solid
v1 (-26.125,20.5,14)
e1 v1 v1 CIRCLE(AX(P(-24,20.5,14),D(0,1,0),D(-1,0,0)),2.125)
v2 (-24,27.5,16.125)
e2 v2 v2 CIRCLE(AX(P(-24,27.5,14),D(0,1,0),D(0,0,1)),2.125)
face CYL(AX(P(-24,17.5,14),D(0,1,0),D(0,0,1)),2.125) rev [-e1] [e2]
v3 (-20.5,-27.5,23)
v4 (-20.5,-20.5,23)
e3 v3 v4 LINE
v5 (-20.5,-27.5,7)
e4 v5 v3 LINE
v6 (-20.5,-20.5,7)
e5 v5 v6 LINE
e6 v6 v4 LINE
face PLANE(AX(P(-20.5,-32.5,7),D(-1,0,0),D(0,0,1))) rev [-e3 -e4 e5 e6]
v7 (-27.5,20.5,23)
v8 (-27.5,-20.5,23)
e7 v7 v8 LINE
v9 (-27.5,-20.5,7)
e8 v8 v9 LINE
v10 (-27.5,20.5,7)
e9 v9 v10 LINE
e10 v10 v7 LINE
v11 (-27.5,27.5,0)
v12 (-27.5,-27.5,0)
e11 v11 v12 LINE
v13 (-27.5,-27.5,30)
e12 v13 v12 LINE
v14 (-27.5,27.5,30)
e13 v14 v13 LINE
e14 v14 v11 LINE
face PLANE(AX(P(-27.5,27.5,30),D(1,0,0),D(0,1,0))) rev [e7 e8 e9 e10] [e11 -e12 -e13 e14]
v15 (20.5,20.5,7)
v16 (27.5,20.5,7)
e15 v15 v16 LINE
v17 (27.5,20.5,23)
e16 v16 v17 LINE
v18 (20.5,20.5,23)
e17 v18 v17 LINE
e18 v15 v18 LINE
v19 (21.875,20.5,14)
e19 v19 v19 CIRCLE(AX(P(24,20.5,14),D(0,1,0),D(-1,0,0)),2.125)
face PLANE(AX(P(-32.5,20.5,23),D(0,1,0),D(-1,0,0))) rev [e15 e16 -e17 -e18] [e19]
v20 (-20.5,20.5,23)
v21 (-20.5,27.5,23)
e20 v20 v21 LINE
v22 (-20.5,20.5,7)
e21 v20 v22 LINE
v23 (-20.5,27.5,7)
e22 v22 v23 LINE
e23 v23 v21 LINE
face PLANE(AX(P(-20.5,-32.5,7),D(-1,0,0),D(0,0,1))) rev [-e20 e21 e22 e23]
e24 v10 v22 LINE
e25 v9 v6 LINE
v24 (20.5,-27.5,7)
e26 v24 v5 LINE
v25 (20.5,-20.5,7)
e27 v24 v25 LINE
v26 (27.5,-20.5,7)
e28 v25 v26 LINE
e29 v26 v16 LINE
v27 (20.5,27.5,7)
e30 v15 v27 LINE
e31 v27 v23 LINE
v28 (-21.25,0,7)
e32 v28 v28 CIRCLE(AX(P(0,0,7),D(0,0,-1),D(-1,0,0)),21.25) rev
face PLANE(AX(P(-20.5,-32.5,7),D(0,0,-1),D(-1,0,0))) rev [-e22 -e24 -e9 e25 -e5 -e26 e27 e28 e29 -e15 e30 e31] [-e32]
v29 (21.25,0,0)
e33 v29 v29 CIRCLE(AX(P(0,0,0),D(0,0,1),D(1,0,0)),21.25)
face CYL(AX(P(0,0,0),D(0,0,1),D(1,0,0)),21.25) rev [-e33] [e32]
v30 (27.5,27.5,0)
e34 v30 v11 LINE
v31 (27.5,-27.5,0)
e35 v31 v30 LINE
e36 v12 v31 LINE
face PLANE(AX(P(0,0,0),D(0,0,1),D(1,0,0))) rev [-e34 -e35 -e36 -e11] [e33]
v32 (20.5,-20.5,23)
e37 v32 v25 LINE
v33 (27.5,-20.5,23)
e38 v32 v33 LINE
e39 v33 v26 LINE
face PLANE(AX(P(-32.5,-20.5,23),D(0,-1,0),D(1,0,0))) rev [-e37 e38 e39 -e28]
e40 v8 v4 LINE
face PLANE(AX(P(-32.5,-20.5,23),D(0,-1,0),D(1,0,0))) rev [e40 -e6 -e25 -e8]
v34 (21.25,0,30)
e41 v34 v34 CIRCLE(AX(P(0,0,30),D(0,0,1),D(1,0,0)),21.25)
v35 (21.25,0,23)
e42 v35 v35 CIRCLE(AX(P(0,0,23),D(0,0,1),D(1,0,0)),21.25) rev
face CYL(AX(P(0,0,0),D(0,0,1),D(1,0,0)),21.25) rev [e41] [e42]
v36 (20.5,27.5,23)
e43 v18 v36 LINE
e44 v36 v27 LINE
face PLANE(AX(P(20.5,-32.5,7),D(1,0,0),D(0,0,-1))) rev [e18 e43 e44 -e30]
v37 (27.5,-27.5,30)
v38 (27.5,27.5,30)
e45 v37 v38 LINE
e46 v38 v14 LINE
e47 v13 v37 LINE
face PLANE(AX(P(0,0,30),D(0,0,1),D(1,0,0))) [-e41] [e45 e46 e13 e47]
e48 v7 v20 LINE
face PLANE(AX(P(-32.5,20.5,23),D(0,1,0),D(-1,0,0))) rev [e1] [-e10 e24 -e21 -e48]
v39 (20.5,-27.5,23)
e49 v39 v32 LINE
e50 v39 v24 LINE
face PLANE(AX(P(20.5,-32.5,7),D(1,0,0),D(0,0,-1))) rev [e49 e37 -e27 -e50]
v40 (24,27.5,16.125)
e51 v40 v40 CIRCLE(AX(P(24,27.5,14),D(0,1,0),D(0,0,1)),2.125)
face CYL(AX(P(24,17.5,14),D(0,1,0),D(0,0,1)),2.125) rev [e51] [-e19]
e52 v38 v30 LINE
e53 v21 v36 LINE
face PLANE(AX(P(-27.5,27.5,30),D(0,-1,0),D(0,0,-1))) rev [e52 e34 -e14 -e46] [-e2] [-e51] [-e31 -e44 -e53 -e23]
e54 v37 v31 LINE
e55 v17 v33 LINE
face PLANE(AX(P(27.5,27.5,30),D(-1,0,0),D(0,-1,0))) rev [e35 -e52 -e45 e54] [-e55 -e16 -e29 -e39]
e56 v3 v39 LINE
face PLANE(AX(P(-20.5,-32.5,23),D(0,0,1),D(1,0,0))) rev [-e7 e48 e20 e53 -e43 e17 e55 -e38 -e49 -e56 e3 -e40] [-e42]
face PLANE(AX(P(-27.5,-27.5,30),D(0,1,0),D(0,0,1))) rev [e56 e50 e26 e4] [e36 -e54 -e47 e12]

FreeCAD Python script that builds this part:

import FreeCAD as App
import Part
import Sketcher
from FreeCAD import Vector


def add_polygon(sketch, points):
    """Adds a closed chain of lines whose ends are joined by coincident constraints."""
    first, n = sketch.GeometryCount, len(points)
    for a, b in zip(points, points[1:] + points[:1]):
        sketch.addGeometry(Part.LineSegment(App.Vector(*a, 0), App.Vector(*b, 0)), False)
    for i in range(n):
        sketch.addConstraint(Sketcher.Constraint("Coincident", first + i, 2, first + (i + 1) % n, 1))

doc = App.newDocument("Part")
body = doc.addObject("PartDesign::Body", "Body")

# Sketch on XY plane
sketch1 = doc.addObject("Sketcher::SketchObject", "Sketch")
body.addObject(sketch1)
sketch1.AttachmentSupport = (doc.XY_Plane, [""])
sketch1.MapMode = "FlatFace"
add_polygon(sketch1, [(-28, 28), (-28, -28), (28, -28), (28, 28)])  # lines 0-3
sketch1.addConstraint([
    Sketcher.Constraint("Vertical", 0),
    Sketcher.Constraint("Horizontal", 1),
    Sketcher.Constraint("Vertical", 2),
    Sketcher.Constraint("Horizontal", 3),
    Sketcher.Constraint("Symmetric", 0, 2, 2, 2, -1, 1),
    Sketcher.Constraint("Equal", 3, 0),
    Sketcher.Constraint("DistanceX", 1, 1, 1, 2, 55.0),
])
pad1 = doc.addObject("PartDesign::Pad", "Pad")
body.addObject(pad1)
pad1.Profile = sketch1
pad1.Length = 30

# Sketch on XY plane
sketch2 = doc.addObject("Sketcher::SketchObject", "Sketch001")
body.addObject(sketch2)
sketch2.AttachmentSupport = (doc.XY_Plane, [""])
sketch2.MapMode = "FlatFace"
sketch2.AttachmentOffset = App.Placement(Vector(0, 0, 30), App.Rotation())
sketch2.addGeometry(Part.Circle(Vector(0, 0, 0), Vector(0, 0, 1), 21), False)
sketch2.addConstraint([
    Sketcher.Constraint("Coincident", 0, 3, -1, 1),
    Sketcher.Constraint("Diameter", 0, 42.5),
])
pocket1 = doc.addObject("PartDesign::Pocket", "Pocket")
body.addObject(pocket1)
pocket1.Profile = sketch2
pocket1.Length = 30

# Sketch on XZ plane
sketch3 = doc.addObject("Sketcher::SketchObject", "Sketch002")
body.addObject(sketch3)
sketch3.AttachmentSupport = (doc.XZ_Plane, [""])
sketch3.MapMode = "FlatFace"
sketch3.AttachmentOffset = App.Placement(Vector(0, 0, -27.5), App.Rotation())
add_polygon(sketch3, [(-20, 7), (-20, 23), (20, 23), (20, 7)])  # lines 0-3
sketch3.addConstraint([
    Sketcher.Constraint("Vertical", 0),
    Sketcher.Constraint("Horizontal", 1),
    Sketcher.Constraint("Vertical", 2),
    Sketcher.Constraint("Horizontal", 3),
    Sketcher.Constraint("DistanceX", 1, 1, 1, 2, 41.0),
    Sketcher.Constraint("DistanceY", 0, 1, 0, 2, 16.0),
    Sketcher.Constraint("DistanceY", -1, 1, 0, 2, 23.0),
    Sketcher.Constraint("DistanceX", 0, 2, -1, 1, 20.5),
])
pocket2 = doc.addObject("PartDesign::Pocket", "Pocket001")
body.addObject(pocket2)
pocket2.Profile = sketch3
pocket2.Length = 60
pocket2.Reversed = True

# Sketch on YZ plane
sketch4 = doc.addObject("Sketcher::SketchObject", "Sketch003")
body.addObject(sketch4)
sketch4.AttachmentSupport = (doc.YZ_Plane, [""])
sketch4.MapMode = "FlatFace"
sketch4.AttachmentOffset = App.Placement(Vector(0, 0, 27.5), App.Rotation())
add_polygon(sketch4, [(20, 23), (-20, 23), (-20, 7), (20, 7)])  # lines 0-3
sketch4.addConstraint([
    Sketcher.Constraint("Horizontal", 0),
    Sketcher.Constraint("Vertical", 1),
    Sketcher.Constraint("Horizontal", 2),
    Sketcher.Constraint("Vertical", 3),
    Sketcher.Constraint("DistanceX", 0, 2, 0, 1, 41.0),
    Sketcher.Constraint("DistanceY", 1, 2, 1, 1, 16.0),
    Sketcher.Constraint("DistanceY", -1, 1, 0, 2, 23.0),
    Sketcher.Constraint("DistanceX", 0, 2, -1, 1, 20.5),
])
pocket3 = doc.addObject("PartDesign::Pocket", "Pocket002")
body.addObject(pocket3)
pocket3.Profile = sketch4
pocket3.Length = 60

# Sketch on XZ plane
sketch5 = doc.addObject("Sketcher::SketchObject", "Sketch004")
body.addObject(sketch5)
sketch5.AttachmentSupport = (doc.XZ_Plane, [""])
sketch5.MapMode = "FlatFace"
sketch5.AttachmentOffset = App.Placement(Vector(0, 0, -27.5), App.Rotation())
sketch5.addGeometry([
    Part.Circle(Vector(-24, 14, 0), Vector(0, 0, 1), 2.1),
    Part.Circle(Vector(24, 14, 0), Vector(0, 0, 1), 2.1),
], False)
sketch5.addConstraint([
    Sketcher.Constraint("Equal", 0, 1),
    Sketcher.Constraint("Symmetric", 0, 3, 1, 3, -2),
    Sketcher.Constraint("Diameter", 0, 4.25),
    Sketcher.Constraint("DistanceX", 0, 3, -1, 1, 24.0),
    Sketcher.Constraint("DistanceY", -1, 1, 0, 3, 14.0),
])
pocket4 = doc.addObject("PartDesign::Pocket", "Pocket003")
body.addObject(pocket4)
pocket4.Profile = sketch5
pocket4.Length = 10
pocket4.Reversed = True

doc.recompute()
